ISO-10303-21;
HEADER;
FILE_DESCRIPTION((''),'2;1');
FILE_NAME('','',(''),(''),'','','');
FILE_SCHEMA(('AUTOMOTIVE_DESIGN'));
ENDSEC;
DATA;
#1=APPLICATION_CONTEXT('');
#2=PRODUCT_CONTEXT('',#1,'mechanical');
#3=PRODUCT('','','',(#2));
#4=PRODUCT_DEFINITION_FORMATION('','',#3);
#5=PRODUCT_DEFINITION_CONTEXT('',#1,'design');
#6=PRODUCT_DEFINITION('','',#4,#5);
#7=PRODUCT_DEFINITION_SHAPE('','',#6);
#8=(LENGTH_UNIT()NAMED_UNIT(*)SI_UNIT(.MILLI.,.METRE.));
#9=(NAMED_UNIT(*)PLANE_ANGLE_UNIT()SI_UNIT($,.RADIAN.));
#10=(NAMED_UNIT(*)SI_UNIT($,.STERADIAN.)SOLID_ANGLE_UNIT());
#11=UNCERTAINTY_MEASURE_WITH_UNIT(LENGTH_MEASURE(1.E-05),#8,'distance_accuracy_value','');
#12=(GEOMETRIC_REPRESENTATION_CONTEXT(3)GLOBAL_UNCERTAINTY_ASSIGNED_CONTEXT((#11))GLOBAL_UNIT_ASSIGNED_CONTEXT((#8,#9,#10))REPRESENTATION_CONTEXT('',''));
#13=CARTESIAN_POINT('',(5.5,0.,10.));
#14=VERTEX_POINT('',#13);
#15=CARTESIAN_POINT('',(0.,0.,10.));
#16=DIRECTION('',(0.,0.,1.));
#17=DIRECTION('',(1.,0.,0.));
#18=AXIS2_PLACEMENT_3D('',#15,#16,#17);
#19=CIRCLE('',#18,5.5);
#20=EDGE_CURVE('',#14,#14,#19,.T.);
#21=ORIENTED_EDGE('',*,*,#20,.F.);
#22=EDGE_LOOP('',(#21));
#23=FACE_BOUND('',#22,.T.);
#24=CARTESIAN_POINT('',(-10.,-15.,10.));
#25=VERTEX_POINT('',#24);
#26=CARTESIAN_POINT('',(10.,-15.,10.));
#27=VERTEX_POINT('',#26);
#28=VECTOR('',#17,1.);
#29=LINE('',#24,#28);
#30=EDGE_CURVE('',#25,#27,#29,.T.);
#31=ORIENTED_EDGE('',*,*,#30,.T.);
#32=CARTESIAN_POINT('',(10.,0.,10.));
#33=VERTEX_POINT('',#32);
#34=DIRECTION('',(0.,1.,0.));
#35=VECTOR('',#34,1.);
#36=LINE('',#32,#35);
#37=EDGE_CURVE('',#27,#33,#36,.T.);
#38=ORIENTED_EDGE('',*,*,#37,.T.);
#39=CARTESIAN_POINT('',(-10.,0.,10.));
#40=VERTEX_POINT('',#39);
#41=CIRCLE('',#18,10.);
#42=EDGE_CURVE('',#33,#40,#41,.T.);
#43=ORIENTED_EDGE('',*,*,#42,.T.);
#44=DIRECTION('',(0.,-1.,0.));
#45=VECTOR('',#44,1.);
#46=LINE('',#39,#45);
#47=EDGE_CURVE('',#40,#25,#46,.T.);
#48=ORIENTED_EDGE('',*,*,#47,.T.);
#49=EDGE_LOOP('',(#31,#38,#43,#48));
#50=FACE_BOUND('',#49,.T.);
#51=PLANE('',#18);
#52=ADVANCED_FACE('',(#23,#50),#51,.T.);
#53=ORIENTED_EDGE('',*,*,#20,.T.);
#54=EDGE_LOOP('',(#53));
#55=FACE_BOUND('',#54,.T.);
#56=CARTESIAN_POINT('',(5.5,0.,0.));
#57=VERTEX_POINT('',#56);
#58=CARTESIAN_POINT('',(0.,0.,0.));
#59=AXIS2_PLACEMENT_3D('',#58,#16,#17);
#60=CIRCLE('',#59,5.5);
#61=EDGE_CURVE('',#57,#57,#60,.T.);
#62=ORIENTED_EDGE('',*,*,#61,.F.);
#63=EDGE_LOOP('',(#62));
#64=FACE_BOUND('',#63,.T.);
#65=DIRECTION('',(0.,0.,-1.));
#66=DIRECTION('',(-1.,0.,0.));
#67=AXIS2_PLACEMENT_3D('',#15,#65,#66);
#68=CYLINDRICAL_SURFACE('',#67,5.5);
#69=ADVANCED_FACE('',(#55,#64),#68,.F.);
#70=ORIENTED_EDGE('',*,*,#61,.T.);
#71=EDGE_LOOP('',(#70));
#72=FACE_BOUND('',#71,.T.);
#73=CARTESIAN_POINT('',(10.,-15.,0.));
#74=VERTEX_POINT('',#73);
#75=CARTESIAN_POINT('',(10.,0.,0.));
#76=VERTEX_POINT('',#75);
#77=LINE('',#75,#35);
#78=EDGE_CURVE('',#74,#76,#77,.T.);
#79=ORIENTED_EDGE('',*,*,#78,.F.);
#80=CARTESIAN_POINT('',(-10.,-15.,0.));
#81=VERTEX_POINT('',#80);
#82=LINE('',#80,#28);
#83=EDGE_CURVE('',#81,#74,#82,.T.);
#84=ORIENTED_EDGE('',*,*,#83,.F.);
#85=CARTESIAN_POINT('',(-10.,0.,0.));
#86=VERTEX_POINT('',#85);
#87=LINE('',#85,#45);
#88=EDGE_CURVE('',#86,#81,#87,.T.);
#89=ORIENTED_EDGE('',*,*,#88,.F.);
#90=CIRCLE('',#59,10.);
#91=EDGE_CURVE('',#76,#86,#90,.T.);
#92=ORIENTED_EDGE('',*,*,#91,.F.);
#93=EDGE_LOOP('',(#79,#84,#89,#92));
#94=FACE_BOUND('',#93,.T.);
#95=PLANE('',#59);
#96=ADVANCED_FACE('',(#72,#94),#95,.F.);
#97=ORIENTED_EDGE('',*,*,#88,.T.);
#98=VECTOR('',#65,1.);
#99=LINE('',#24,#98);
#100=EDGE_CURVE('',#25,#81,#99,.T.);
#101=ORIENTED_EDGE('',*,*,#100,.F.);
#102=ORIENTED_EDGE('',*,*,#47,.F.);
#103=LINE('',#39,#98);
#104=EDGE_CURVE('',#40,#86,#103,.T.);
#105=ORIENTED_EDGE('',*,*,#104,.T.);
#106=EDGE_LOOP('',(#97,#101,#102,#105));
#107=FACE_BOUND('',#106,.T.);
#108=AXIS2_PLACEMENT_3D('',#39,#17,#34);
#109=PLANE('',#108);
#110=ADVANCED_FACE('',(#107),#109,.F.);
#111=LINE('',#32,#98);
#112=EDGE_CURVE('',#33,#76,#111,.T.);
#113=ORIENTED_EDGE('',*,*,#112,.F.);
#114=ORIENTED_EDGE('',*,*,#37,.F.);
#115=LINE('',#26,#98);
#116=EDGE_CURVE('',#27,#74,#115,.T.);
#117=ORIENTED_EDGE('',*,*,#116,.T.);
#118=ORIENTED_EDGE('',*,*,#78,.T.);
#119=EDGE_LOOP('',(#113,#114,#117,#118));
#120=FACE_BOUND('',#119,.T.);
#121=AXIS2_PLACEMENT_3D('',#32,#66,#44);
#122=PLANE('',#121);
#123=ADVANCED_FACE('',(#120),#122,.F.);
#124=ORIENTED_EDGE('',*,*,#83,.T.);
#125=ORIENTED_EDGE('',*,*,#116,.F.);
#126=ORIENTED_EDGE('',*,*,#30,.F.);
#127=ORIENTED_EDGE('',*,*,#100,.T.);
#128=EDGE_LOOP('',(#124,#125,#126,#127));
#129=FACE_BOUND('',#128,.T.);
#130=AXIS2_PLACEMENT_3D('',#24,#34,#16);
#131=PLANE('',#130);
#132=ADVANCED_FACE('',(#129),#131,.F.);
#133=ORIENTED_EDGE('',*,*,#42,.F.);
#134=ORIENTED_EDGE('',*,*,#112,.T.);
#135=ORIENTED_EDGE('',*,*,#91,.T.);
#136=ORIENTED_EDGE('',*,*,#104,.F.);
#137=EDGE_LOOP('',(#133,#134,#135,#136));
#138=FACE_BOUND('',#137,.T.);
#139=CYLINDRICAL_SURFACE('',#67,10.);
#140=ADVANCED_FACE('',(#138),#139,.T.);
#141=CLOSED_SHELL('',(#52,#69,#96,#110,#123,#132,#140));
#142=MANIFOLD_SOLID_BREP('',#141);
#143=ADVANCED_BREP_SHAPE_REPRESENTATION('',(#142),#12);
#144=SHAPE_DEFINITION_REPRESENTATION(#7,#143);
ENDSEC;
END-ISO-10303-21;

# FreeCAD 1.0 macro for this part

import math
import FreeCAD as App
import Part
import Sketcher

V = App.Vector

doc = App.newDocument("Part")
body = doc.addObject("PartDesign::Body", "Body")

sketch1 = body.newObject("Sketcher::SketchObject", "Sketch")
sketch1.AttachmentSupport = (doc.getObject("XY_Plane"), [""])
sketch1.MapMode = "FlatFace"
sketch1.addGeometry([
    Part.LineSegment(V(-10, 0, 0), V(-10, -15, 0)),
    Part.LineSegment(V(-10, -15, 0), V(10, -15, 0)),
    Part.LineSegment(V(10, -15, 0), V(10, 0, 0)),
    Part.ArcOfCircle(Part.Circle(V(0, 0, 0), V(0, 0, 1), 10), math.radians(0), math.radians(180)),
    Part.Circle(V(0, 0, 0), V(0, 0, 1), 5.5),
], False)
sketch1.addConstraint([
    Sketcher.Constraint("Coincident", 0, 2, 1, 1),
    Sketcher.Constraint("Coincident", 1, 2, 2, 1),
    Sketcher.Constraint("Tangent", 2, 2, 3, 1),
    Sketcher.Constraint("Tangent", 3, 2, 0, 1),
    Sketcher.Constraint("Vertical", 0),
    Sketcher.Constraint("Horizontal", 1),
    Sketcher.Constraint("Vertical", 2),
    Sketcher.Constraint("Coincident", 3, 3, -1, 1),
    Sketcher.Constraint("Coincident", 4, 3, -1, 1),
    Sketcher.Constraint("Diameter", 4, 11.0),
    Sketcher.Constraint("Radius", 3, 10.0),
    Sketcher.Constraint("DistanceY", 0, 2, 0, 1, 15.0),
])
pad1 = body.newObject("PartDesign::Pad", "Pad")
pad1.Profile = sketch1
pad1.Length = 10

doc.recompute()
